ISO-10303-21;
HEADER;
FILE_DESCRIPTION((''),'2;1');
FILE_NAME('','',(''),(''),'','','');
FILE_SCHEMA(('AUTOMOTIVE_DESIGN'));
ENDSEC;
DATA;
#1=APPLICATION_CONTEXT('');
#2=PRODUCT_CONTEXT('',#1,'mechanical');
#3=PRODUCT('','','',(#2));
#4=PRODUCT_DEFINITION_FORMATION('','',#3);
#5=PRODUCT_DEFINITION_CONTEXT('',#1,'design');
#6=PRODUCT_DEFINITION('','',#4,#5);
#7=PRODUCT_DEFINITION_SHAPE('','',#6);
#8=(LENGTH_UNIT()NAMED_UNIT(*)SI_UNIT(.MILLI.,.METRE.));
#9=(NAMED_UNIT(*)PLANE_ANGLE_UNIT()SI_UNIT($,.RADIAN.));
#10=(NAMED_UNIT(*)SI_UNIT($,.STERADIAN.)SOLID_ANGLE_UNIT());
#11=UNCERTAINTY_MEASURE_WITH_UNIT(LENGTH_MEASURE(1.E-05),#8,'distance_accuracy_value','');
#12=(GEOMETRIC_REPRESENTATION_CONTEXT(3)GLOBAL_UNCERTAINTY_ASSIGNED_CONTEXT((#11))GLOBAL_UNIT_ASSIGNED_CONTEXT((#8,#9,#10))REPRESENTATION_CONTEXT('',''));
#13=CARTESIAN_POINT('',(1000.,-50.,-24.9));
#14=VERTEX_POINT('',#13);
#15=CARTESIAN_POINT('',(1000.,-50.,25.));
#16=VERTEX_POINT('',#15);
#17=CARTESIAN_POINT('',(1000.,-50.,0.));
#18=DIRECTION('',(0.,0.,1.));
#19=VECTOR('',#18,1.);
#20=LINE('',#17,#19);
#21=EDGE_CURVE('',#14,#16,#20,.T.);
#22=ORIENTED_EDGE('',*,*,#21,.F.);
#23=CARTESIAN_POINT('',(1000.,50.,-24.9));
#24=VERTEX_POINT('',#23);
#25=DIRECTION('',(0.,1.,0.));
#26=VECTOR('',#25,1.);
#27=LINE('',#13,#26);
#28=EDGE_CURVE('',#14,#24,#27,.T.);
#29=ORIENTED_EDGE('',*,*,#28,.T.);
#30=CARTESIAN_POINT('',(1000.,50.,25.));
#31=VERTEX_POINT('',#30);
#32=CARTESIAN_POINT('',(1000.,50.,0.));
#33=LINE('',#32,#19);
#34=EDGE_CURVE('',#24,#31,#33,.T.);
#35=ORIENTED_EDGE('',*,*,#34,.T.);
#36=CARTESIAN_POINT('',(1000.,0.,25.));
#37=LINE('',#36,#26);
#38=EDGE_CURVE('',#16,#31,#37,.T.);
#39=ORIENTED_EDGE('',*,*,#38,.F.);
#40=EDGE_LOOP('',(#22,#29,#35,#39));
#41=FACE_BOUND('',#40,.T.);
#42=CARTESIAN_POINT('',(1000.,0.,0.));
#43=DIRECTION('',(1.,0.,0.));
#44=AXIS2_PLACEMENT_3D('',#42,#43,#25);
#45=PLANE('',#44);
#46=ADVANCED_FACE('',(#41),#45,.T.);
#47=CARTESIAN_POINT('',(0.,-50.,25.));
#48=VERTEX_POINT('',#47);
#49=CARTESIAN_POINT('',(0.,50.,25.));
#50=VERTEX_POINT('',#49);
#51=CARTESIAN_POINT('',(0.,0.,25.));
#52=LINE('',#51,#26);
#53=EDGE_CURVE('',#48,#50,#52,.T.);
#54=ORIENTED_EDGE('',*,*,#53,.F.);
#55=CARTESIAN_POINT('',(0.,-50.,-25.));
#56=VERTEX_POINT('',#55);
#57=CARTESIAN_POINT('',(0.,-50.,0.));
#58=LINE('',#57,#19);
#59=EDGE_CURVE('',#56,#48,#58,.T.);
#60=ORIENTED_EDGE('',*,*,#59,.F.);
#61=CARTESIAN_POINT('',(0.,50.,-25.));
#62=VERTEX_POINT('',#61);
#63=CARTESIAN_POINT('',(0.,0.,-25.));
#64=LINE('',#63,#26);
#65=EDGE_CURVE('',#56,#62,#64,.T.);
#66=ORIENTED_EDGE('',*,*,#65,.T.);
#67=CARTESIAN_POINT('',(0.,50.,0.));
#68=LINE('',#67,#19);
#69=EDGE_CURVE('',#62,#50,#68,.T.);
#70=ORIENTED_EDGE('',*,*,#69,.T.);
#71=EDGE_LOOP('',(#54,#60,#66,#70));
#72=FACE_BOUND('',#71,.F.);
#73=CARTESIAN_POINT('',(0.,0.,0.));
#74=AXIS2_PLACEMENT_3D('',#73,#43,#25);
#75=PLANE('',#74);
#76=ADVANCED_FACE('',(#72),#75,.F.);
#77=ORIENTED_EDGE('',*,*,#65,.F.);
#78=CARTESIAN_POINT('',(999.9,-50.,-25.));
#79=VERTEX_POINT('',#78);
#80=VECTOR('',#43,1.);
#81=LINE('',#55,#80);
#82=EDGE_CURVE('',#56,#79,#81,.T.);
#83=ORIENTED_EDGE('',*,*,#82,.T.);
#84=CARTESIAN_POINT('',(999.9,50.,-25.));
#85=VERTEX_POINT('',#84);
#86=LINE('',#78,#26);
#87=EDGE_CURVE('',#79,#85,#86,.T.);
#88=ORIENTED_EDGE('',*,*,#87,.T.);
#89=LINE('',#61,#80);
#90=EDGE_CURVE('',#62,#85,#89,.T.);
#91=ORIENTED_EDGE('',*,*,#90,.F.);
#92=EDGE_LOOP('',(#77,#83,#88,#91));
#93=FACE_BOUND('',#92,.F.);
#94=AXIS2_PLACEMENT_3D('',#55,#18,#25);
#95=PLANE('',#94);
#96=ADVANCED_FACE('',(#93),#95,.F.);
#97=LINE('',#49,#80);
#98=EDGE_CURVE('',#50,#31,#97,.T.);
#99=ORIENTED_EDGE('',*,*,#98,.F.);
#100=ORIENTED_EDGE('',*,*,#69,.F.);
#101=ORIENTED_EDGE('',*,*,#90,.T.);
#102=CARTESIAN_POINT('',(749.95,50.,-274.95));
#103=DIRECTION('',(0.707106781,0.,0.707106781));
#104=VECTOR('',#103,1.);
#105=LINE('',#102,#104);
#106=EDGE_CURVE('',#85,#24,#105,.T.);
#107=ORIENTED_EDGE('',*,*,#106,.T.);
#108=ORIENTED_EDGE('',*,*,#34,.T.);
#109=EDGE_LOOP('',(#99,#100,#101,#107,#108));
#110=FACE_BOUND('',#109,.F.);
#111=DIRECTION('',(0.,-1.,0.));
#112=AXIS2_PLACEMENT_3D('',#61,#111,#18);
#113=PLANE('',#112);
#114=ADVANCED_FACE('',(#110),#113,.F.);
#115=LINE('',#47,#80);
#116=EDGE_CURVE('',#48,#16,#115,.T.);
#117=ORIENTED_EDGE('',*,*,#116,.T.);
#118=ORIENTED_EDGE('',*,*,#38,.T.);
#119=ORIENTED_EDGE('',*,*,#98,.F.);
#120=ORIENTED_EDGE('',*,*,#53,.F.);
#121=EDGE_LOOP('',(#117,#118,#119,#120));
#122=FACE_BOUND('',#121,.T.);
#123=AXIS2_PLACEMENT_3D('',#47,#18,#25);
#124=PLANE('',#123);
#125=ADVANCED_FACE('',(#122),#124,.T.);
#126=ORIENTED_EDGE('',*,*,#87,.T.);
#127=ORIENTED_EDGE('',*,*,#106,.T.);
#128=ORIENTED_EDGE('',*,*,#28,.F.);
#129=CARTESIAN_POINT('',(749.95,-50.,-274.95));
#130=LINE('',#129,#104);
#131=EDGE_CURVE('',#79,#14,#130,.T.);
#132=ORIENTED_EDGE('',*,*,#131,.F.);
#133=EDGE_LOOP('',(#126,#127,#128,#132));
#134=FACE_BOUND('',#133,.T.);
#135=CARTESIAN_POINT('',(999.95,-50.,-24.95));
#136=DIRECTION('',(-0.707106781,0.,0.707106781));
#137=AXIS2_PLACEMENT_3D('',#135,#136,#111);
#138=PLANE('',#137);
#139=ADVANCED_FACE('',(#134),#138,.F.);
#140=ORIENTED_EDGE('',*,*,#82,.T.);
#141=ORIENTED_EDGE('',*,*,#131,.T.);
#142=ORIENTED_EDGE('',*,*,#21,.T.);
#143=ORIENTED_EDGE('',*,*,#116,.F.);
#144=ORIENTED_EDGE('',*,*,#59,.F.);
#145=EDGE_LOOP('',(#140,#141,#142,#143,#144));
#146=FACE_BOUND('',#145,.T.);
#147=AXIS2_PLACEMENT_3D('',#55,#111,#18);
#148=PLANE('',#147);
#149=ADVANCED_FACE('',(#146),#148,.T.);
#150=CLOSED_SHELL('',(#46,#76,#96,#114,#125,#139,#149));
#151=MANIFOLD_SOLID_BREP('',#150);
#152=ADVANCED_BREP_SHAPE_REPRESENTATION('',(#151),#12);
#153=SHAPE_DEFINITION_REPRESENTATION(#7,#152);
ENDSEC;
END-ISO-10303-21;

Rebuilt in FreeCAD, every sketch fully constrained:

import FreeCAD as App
import Part
import Sketcher

V = App.Vector
Q = App.Units.Quantity


def edges_at(feature, points):
    """Names of the edges that pass closest to the given points."""
    edges = feature.Shape.Edges
    near = lambda p: min(range(len(edges)), key=lambda i: edges[i].distToShape(Part.Vertex(*p))[0])
    return sorted({f"Edge{near(p) + 1}" for p in points})


def add_polygon(sketch, points):
    """Adds a closed chain of lines whose ends are joined by coincident constraints."""
    first, n = sketch.GeometryCount, len(points)
    for a, b in zip(points, points[1:] + points[:1]):
        sketch.addGeometry(Part.LineSegment(App.Vector(*a, 0), App.Vector(*b, 0)), False)
    for i in range(n):
        sketch.addConstraint(Sketcher.Constraint("Coincident", first + i, 2, first + (i + 1) % n, 1))

doc = App.newDocument("Part")
body = doc.addObject("PartDesign::Body", "Body")

# Sketch on YZ plane
sketch1 = body.newObject("Sketcher::SketchObject", "Sketch")
sketch1.AttachmentSupport = (doc.getObject("YZ_Plane"), [""])
sketch1.MapMode = "FlatFace"
add_polygon(sketch1, [(-50, 25), (-50, -25), (50, -25), (50, 25)])  # lines 0-3
sketch1.addConstraint(Sketcher.Constraint("Vertical", 0))
sketch1.addConstraint(Sketcher.Constraint("Horizontal", 1))
sketch1.addConstraint(Sketcher.Constraint("Vertical", 2))
sketch1.addConstraint(Sketcher.Constraint("Horizontal", 3))
sketch1.addConstraint(Sketcher.Constraint("Symmetric", 0, 2, 2, 2, -1, 1))
sketch1.addConstraint(Sketcher.Constraint("DistanceX", 1, 1, 1, 2, Q("100 mm")))
sketch1.addConstraint(Sketcher.Constraint("DistanceY", 0, 2, 0, 1, Q("50 mm")))
pad1 = body.newObject("PartDesign::Pad", "Pad")
pad1.Profile = sketch1
pad1.Length = 1000
doc.recompute()

chamfer = body.newObject("PartDesign::Chamfer", "Chamfer")
chamfer.Base = (pad1, edges_at(pad1, [(1000, 0, -25)]))
chamfer.Size = 0.1

doc.recompute()
